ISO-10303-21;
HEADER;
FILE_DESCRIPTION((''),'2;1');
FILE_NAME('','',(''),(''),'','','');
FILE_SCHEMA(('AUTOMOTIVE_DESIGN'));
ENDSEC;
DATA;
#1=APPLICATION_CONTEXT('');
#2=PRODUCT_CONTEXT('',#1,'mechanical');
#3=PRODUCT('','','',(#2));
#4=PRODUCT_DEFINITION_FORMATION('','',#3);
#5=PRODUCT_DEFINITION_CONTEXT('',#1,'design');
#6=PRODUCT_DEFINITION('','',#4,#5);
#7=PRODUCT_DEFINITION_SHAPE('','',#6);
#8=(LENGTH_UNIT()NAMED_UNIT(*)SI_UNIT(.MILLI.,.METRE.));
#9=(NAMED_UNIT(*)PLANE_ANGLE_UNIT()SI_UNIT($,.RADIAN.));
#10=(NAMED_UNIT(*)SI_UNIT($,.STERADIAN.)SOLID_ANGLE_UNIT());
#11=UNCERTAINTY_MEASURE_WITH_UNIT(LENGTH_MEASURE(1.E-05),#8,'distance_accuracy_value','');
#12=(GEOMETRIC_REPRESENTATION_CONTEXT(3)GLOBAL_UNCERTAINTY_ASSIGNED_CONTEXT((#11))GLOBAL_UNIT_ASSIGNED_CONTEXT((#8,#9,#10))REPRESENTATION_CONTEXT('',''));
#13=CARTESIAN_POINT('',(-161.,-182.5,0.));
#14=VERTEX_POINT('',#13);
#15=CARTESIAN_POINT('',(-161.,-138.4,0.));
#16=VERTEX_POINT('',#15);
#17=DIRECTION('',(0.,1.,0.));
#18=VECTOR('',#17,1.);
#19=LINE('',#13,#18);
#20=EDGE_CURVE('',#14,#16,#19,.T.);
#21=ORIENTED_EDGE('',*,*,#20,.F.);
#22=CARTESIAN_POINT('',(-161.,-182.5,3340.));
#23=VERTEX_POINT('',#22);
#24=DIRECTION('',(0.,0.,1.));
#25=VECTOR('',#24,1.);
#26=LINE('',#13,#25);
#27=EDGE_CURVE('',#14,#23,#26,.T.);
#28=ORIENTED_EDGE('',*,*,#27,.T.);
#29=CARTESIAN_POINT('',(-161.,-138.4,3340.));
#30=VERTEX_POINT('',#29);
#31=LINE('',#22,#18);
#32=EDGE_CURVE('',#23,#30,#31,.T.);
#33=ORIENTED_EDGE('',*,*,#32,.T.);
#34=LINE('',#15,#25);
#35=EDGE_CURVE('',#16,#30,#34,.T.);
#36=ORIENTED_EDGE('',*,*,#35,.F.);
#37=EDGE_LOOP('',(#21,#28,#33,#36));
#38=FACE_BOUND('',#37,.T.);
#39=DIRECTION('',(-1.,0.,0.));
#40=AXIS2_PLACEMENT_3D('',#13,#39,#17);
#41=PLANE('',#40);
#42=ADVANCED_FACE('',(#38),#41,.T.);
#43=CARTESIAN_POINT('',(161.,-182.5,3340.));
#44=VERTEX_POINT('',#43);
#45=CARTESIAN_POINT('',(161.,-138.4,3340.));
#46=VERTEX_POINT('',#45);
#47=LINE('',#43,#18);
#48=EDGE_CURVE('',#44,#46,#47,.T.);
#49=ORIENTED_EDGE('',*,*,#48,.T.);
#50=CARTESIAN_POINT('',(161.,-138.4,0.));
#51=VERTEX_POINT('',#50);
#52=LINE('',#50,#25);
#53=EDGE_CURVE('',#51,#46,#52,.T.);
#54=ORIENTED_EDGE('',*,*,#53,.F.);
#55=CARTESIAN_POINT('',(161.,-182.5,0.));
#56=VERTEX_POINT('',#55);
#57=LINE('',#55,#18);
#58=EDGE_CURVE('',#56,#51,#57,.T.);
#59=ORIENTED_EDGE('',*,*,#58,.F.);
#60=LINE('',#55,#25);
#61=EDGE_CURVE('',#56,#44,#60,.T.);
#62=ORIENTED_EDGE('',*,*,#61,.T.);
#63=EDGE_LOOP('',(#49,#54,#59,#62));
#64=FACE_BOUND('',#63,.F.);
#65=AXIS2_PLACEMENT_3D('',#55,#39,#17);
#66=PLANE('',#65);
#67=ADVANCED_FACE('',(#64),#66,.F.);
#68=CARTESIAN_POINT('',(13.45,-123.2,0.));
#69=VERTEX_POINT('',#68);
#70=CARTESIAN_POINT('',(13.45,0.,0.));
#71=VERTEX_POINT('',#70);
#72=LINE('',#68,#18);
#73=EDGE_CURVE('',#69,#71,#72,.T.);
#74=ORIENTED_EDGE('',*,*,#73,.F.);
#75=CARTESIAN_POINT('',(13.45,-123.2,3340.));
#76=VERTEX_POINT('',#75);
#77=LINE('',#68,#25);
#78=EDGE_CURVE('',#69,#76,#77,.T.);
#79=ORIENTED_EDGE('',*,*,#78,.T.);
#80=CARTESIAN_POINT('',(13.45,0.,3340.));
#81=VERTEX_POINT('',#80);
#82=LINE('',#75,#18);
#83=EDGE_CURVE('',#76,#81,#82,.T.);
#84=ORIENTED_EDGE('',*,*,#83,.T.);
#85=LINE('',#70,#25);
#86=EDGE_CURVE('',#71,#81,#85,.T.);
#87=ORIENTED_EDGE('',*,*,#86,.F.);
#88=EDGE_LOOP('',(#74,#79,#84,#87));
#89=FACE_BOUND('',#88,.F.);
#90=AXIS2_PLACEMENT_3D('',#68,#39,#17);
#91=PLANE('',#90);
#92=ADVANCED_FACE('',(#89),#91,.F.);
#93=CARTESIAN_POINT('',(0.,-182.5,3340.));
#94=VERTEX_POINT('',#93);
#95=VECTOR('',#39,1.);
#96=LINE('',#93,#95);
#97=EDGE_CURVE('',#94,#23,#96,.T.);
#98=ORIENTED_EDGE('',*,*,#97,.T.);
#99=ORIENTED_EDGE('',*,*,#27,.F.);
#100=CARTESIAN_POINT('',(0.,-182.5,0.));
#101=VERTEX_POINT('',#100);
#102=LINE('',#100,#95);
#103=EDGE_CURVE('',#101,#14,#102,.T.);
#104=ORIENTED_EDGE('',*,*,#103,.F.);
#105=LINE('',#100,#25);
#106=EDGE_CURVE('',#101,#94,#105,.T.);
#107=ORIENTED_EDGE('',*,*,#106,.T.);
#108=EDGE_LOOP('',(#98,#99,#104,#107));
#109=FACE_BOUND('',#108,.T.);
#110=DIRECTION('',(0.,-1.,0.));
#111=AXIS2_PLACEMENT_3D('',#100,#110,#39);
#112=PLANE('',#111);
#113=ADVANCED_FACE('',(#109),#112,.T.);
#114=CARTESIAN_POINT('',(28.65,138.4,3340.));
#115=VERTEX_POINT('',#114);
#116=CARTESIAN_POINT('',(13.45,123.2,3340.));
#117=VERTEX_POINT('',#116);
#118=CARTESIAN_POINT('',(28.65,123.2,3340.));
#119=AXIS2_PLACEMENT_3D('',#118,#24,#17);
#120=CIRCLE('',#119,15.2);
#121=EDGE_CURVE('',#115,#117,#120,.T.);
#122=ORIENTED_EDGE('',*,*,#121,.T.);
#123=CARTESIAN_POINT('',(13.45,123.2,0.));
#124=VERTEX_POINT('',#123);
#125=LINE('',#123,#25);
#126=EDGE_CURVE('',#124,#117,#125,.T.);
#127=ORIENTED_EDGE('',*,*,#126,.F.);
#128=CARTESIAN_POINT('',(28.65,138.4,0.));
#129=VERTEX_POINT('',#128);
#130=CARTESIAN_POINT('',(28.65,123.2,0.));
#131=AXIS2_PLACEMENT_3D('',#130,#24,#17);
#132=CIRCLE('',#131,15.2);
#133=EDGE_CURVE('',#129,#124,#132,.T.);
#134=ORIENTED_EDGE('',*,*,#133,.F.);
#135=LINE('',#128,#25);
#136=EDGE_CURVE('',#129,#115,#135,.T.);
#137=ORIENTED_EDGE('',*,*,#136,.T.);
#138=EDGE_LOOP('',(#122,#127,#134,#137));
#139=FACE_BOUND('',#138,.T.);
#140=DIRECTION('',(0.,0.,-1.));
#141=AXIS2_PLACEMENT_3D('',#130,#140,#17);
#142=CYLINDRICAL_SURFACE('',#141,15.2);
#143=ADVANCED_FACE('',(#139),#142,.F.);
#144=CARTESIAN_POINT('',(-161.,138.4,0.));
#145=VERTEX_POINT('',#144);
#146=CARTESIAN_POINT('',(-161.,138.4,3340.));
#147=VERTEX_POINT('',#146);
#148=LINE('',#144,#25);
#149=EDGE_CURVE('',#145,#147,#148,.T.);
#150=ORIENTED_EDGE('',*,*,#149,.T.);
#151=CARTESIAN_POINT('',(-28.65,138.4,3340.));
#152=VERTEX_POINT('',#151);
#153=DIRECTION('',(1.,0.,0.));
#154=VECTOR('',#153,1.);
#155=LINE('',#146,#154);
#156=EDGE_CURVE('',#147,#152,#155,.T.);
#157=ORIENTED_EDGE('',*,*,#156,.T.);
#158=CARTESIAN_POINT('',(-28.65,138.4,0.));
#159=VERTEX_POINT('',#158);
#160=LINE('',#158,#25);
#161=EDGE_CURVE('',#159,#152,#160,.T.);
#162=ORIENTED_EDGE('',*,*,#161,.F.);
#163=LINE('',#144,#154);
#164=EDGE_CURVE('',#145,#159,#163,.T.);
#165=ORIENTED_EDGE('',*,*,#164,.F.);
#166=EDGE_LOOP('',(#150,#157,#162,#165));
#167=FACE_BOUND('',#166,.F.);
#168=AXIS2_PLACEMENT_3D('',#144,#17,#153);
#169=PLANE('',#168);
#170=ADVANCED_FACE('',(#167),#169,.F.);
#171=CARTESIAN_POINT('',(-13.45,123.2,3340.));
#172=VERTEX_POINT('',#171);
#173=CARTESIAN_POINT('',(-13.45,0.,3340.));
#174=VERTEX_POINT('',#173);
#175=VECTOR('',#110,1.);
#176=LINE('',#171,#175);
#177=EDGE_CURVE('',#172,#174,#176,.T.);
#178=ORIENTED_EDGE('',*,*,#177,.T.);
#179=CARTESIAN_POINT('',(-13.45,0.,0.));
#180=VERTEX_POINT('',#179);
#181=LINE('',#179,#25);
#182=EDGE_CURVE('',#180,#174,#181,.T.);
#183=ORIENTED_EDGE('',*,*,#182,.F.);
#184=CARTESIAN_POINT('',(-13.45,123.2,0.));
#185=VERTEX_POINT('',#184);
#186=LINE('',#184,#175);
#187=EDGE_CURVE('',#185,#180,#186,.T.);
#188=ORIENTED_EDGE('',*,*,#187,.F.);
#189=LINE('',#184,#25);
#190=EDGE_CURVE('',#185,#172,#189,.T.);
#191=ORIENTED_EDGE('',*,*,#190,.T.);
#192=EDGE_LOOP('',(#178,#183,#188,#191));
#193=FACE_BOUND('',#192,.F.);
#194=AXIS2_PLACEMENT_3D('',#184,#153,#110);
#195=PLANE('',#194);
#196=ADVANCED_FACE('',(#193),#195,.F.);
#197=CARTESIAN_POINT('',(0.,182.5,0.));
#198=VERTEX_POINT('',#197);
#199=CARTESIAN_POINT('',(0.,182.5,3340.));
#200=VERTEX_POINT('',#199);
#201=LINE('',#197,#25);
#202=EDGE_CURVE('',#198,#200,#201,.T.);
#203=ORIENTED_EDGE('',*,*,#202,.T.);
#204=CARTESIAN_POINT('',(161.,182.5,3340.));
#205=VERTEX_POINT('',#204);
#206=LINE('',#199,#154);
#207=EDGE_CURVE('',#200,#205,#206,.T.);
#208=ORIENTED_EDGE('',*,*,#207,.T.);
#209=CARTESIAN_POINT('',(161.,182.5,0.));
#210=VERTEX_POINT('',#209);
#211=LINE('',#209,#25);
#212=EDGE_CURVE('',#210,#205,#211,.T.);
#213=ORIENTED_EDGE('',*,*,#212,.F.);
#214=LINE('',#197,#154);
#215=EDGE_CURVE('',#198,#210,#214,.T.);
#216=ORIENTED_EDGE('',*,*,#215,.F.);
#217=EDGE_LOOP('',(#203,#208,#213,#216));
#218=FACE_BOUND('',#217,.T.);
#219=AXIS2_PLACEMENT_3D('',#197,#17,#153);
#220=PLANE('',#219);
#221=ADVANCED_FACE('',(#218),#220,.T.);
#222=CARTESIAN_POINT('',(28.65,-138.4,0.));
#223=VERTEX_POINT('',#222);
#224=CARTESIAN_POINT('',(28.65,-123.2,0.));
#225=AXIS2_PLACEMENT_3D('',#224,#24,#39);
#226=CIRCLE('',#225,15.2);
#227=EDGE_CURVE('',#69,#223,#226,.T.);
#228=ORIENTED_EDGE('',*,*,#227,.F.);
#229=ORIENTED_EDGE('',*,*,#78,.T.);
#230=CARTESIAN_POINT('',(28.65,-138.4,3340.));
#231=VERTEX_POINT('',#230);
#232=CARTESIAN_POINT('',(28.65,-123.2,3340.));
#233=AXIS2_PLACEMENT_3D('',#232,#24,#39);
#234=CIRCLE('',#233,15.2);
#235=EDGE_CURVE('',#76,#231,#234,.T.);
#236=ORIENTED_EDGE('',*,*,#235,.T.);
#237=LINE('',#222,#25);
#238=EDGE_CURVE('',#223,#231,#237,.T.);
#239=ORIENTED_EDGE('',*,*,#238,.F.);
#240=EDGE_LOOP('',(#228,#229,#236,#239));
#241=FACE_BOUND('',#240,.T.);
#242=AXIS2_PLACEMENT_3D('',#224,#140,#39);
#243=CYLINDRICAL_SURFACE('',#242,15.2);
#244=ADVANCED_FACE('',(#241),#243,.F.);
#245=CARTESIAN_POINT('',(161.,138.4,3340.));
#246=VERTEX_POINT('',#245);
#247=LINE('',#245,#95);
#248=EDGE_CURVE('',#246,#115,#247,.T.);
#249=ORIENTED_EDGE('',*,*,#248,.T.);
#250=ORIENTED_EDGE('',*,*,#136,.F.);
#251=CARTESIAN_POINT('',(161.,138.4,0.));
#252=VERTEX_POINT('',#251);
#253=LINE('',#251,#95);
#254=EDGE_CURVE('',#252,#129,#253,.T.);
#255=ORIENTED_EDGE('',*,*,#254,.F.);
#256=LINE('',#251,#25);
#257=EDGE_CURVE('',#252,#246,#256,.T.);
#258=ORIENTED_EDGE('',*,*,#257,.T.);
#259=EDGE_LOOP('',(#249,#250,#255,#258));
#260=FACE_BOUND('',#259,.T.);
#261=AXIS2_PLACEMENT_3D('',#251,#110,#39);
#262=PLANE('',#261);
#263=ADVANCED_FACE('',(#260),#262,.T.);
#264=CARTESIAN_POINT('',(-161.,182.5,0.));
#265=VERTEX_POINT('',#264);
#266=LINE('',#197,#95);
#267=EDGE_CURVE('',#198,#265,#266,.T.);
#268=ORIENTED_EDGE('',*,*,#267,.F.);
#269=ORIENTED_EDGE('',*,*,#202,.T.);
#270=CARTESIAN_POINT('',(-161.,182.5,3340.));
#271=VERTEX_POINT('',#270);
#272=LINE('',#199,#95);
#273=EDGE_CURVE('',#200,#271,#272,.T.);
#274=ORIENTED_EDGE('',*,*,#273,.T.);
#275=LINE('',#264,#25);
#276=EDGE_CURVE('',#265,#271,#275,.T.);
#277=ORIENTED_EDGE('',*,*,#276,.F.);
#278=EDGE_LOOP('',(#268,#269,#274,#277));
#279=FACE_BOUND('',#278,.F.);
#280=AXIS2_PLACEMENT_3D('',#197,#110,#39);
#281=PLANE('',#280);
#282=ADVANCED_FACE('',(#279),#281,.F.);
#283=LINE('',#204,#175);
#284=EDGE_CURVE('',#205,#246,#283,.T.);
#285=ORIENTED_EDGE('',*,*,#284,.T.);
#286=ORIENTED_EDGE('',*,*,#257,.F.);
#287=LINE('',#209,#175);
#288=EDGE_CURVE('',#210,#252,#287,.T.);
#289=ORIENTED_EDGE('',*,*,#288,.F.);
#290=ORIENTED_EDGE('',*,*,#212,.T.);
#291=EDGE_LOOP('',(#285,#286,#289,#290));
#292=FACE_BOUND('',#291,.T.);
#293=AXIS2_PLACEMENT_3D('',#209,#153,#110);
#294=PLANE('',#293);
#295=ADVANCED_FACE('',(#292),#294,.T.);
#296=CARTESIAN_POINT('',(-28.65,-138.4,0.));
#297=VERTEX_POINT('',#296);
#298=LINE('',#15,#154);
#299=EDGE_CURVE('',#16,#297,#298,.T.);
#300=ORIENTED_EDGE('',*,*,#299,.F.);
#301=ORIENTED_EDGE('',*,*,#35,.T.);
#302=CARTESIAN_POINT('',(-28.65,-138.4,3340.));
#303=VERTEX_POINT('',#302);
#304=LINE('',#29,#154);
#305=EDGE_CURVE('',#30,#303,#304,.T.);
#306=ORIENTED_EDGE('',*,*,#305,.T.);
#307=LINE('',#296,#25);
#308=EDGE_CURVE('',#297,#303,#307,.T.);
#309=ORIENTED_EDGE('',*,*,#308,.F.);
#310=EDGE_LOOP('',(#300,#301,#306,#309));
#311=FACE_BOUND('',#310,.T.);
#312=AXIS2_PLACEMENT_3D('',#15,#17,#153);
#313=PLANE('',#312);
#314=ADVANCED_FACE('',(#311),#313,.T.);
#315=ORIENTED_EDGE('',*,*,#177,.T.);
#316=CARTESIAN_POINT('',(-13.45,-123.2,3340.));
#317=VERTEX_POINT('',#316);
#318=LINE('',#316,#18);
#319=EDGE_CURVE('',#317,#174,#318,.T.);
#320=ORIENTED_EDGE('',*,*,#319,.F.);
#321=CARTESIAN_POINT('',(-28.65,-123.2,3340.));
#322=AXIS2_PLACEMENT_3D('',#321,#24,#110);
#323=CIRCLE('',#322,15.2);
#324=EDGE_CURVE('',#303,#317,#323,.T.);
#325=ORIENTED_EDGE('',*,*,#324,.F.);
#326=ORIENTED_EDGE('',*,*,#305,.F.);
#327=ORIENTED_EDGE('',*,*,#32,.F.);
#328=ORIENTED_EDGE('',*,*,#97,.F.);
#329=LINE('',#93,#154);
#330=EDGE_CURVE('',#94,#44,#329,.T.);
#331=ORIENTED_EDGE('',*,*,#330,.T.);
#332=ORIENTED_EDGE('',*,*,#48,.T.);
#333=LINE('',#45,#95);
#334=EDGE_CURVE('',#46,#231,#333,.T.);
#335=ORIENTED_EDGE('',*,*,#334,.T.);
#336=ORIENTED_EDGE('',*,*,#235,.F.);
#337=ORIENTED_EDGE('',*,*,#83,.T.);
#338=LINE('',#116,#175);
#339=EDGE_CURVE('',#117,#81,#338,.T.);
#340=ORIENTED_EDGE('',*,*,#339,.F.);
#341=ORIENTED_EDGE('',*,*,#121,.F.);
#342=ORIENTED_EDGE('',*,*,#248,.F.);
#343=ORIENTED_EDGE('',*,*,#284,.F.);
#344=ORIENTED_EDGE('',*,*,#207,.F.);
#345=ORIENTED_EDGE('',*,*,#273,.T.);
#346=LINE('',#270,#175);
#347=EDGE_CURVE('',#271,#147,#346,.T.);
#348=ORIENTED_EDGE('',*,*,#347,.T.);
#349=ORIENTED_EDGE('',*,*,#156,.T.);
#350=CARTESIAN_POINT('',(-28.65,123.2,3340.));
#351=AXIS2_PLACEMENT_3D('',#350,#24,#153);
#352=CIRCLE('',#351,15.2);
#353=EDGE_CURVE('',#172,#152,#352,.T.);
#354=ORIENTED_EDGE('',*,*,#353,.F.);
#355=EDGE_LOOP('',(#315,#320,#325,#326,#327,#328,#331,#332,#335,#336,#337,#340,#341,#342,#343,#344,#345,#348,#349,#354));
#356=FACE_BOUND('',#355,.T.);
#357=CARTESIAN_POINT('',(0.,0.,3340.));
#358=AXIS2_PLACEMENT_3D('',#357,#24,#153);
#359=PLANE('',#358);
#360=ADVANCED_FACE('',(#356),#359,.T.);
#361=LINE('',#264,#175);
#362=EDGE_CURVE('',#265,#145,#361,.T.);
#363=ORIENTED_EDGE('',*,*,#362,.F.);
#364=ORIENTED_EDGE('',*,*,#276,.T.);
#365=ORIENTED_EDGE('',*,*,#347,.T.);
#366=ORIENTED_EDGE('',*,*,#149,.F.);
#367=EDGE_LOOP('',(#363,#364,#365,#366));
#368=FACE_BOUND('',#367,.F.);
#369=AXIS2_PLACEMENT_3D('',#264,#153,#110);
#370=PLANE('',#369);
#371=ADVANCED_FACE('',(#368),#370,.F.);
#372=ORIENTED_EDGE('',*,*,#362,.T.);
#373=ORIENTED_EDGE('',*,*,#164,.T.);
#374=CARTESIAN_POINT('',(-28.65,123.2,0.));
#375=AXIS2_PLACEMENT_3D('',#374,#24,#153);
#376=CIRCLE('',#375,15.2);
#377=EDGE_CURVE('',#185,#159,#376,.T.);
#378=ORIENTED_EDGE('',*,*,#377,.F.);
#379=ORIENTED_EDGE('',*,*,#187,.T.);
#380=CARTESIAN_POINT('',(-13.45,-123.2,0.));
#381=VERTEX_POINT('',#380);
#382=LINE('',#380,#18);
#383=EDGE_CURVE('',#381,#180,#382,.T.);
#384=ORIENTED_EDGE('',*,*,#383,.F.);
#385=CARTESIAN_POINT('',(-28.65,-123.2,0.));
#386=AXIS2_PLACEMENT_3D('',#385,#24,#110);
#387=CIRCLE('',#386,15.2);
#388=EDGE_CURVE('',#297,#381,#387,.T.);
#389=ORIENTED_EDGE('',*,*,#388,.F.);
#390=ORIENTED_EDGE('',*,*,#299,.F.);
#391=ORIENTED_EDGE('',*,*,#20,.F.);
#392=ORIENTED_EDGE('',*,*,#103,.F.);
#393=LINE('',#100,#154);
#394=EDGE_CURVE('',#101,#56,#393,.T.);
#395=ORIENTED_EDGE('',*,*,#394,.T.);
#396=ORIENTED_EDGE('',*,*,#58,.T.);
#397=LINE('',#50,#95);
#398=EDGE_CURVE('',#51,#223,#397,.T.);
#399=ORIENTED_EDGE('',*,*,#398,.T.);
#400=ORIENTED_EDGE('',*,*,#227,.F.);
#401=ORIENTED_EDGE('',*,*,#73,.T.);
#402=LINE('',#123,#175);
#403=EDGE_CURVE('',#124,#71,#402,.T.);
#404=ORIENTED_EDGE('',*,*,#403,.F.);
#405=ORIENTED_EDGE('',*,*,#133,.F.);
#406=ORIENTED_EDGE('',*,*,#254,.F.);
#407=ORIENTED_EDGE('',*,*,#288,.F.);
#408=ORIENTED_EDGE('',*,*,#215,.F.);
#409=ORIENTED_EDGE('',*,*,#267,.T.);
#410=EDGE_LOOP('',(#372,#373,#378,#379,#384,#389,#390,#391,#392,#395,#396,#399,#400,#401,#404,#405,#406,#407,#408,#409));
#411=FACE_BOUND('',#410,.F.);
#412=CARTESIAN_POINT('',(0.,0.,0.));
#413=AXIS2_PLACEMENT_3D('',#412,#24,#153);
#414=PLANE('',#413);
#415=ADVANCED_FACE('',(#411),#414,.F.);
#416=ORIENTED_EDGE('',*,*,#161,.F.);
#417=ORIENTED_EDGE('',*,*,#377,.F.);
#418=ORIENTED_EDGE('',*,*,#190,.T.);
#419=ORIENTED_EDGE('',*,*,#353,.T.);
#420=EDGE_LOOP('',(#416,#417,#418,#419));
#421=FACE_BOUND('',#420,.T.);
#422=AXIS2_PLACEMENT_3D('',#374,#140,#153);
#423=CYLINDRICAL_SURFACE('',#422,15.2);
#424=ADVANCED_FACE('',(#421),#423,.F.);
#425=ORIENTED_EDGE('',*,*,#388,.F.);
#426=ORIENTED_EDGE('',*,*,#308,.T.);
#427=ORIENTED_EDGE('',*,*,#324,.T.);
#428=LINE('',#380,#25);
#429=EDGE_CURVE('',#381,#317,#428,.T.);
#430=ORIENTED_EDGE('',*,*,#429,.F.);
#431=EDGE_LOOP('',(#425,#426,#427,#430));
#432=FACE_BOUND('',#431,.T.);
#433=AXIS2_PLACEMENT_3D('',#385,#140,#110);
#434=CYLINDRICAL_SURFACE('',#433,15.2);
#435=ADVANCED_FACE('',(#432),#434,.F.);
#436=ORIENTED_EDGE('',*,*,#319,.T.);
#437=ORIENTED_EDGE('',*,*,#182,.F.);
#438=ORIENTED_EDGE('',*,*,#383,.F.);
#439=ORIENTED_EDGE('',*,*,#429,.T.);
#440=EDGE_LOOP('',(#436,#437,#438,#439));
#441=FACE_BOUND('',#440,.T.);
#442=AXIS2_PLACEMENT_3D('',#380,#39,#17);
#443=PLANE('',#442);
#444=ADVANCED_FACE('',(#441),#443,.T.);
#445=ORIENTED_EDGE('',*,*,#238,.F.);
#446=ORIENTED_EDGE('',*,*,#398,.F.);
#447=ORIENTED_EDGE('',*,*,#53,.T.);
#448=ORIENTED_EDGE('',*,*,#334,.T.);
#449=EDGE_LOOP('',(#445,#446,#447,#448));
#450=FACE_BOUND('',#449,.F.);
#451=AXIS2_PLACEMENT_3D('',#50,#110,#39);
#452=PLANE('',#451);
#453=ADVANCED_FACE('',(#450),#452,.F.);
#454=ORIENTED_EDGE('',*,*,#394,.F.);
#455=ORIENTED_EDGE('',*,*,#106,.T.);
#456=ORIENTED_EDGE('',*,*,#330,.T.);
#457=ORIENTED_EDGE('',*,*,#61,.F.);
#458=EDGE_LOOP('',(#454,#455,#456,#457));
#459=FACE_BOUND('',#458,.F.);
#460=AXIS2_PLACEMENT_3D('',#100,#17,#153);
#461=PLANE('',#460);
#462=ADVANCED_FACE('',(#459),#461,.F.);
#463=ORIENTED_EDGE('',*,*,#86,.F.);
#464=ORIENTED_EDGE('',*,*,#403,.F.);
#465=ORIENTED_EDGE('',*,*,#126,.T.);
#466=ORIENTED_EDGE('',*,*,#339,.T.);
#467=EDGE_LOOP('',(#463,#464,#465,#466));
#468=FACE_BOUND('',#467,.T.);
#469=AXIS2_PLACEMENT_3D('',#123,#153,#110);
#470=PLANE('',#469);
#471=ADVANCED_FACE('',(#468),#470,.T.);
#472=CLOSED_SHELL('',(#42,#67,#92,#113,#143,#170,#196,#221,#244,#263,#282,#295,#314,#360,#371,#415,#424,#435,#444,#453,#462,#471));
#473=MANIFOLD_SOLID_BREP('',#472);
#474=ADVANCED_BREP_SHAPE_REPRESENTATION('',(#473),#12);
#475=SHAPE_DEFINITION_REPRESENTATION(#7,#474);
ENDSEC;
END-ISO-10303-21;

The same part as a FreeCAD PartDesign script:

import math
import FreeCAD as App
import Part
import Sketcher

V = App.Vector
Q = App.Units.Quantity

doc = App.newDocument("Part")
params = doc.addObject("Spreadsheet::Sheet", "Params")
for row, (alias, value) in enumerate([
    ("sketch1_radius", "15.2 mm"),
    ("sketch1_height", "44.1 mm"),
    ("pad1_length", "3340 mm"),
], start=1):
    params.set(f"A{row}", alias)
    params.set(f"B{row}", "=" + value)
    params.setAlias(f"B{row}", alias)

body = doc.addObject("PartDesign::Body", "Body")

# Sketch on XY plane
sketch1 = doc.addObject("Sketcher::SketchObject", "Sketch")
body.addObject(sketch1)
sketch1.AttachmentSupport = (doc.XY_Plane, [""])
sketch1.MapMode = "FlatFace"
sketch1.addGeometry([
    Part.LineSegment(V(-161, -138, 0), V(-161, -182, 0)),  # 0
    Part.LineSegment(V(-161, -182, 0), V(161, -182, 0)),  # 1
    Part.LineSegment(V(161, -182, 0), V(161, -138, 0)),  # 2
    Part.LineSegment(V(161, -138, 0), V(29, -138, 0)),  # 3
    Part.ArcOfCircle(Part.Circle(V(29, -123, 0), V(0, 0, 1), 15), math.radians(180), math.radians(270)),  # 4
    Part.LineSegment(V(13, -123, 0), V(13, 123, 0)),  # 5
    Part.ArcOfCircle(Part.Circle(V(29, 123, 0), V(0, 0, 1), 15), math.radians(90), math.radians(180)),  # 6
    Part.LineSegment(V(29, 138, 0), V(161, 138, 0)),  # 7
    Part.LineSegment(V(161, 138, 0), V(161, 182, 0)),  # 8
    Part.LineSegment(V(161, 182, 0), V(-161, 182, 0)),  # 9
    Part.LineSegment(V(-161, 182, 0), V(-161, 138, 0)),  # 10
    Part.LineSegment(V(-161, 138, 0), V(-29, 138, 0)),  # 11
    Part.ArcOfCircle(Part.Circle(V(-29, 123, 0), V(0, 0, 1), 15), math.radians(0), math.radians(90)),  # 12
    Part.LineSegment(V(-13, 123, 0), V(-13, -123, 0)),  # 13
    Part.ArcOfCircle(Part.Circle(V(-29, -123, 0), V(0, 0, 1), 15), math.radians(-90), math.radians(0)),  # 14
    Part.LineSegment(V(-29, -138, 0), V(-161, -138, 0)),  # 15
], False)
sketch1.addConstraint([
    Sketcher.Constraint("Coincident", 0, 2, 1, 1),
    Sketcher.Constraint("Coincident", 1, 2, 2, 1),
    Sketcher.Constraint("Coincident", 2, 2, 3, 1),
    Sketcher.Constraint("Tangent", 3, 2, 4, 2),
    Sketcher.Constraint("Tangent", 4, 1, 5, 1),
    Sketcher.Constraint("Tangent", 5, 2, 6, 2),
    Sketcher.Constraint("Tangent", 6, 1, 7, 1),
    Sketcher.Constraint("Coincident", 7, 2, 8, 1),
    Sketcher.Constraint("Coincident", 8, 2, 9, 1),
    Sketcher.Constraint("Coincident", 9, 2, 10, 1),
    Sketcher.Constraint("Coincident", 10, 2, 11, 1),
    Sketcher.Constraint("Tangent", 11, 2, 12, 2),
    Sketcher.Constraint("Tangent", 12, 1, 13, 1),
    Sketcher.Constraint("Tangent", 13, 2, 14, 2),
    Sketcher.Constraint("Tangent", 14, 1, 15, 1),
    Sketcher.Constraint("Coincident", 15, 2, 0, 1),
    Sketcher.Constraint("Vertical", 0),
    Sketcher.Constraint("Horizontal", 1),
    Sketcher.Constraint("Vertical", 2),
    Sketcher.Constraint("Horizontal", 3),
    Sketcher.Constraint("Vertical", 5),
    Sketcher.Constraint("Horizontal", 7),
    Sketcher.Constraint("Vertical", 8),
    Sketcher.Constraint("Horizontal", 9),
    Sketcher.Constraint("Vertical", 10),
    Sketcher.Constraint("Horizontal", 11),
    Sketcher.Constraint("Vertical", 13),
    Sketcher.Constraint("Horizontal", 15),
    Sketcher.Constraint("Equal", 4, 6),
    Sketcher.Constraint("Equal", 6, 12),
    Sketcher.Constraint("Equal", 12, 14),
    Sketcher.Constraint("Symmetric", 4, 3, 12, 3, -1, 1),
    Sketcher.Constraint("Symmetric", 0, 2, 8, 2, -1, 1),
    Sketcher.Constraint("Symmetric", 7, 2, 10, 2, -2),
    Sketcher.Constraint("Symmetric", 2, 2, 15, 2, -2),
    Sketcher.Constraint("Radius", 4, Q("15.2 mm")),
    Sketcher.Constraint("DistanceY", 0, 2, 0, 1, Q("44.1 mm")),
    Sketcher.Constraint("DistanceX", 0, 2, -1, 1, Q("161 mm")),
    Sketcher.Constraint("DistanceY", 0, 2, -1, 1, Q("182.5 mm")),
    Sketcher.Constraint("DistanceX", -1, 1, 4, 1, Q("13.45 mm")),
])
sketch1.setExpression("Constraints[35]", "Params.sketch1_radius")
sketch1.setExpression("Constraints[36]", "Params.sketch1_height")
pad1 = doc.addObject("PartDesign::Pad", "Pad")
body.addObject(pad1)
pad1.Profile = sketch1
pad1.setExpression("Length", "Params.pad1_length")

doc.recompute()
